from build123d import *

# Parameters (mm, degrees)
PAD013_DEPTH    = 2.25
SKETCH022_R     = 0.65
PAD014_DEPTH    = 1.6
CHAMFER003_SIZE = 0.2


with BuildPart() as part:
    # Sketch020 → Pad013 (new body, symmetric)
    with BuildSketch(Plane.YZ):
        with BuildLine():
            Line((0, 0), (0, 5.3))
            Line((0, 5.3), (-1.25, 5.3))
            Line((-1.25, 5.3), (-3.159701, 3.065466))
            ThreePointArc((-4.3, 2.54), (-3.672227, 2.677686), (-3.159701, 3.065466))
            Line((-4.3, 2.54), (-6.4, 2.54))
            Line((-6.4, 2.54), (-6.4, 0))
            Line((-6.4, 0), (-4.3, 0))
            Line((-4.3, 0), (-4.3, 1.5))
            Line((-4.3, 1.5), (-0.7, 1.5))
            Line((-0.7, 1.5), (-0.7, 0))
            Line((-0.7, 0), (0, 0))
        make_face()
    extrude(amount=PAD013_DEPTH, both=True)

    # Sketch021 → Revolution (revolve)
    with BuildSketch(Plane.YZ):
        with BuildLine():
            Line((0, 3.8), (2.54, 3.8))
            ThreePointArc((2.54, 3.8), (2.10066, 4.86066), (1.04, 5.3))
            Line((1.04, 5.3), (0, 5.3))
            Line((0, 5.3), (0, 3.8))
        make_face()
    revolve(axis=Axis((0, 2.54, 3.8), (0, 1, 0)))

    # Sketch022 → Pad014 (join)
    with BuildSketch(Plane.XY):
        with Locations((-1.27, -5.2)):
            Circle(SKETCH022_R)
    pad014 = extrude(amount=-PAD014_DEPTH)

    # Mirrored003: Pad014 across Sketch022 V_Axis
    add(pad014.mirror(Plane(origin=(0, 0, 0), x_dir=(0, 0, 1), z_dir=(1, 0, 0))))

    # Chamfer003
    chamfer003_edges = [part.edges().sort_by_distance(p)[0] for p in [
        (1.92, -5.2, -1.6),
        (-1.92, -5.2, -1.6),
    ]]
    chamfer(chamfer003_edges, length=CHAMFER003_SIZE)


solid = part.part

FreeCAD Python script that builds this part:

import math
import FreeCAD as App
import Part
import Sketcher

V = App.Vector


def edges_at(feature, points):
    """Names of the edges that pass closest to the given points."""
    edges = feature.Shape.Edges
    near = lambda p: min(range(len(edges)), key=lambda i: edges[i].distToShape(Part.Vertex(*p))[0])
    return sorted({f"Edge{near(p) + 1}" for p in points})

doc = App.newDocument("Part")
body = doc.addObject("PartDesign::Body", "Body")

sketch1 = body.newObject("Sketcher::SketchObject", "Sketch")
sketch1.AttachmentSupport = (doc.getObject("YZ_Plane"), [""])
sketch1.MapMode = "FlatFace"
sketch1.addGeometry(Part.LineSegment(V(0, 0, 0), V(0, 5.3, 0)), False)
sketch1.addGeometry(Part.LineSegment(V(0, 5.3, 0), V(-1.25, 5.3, 0)), False)
sketch1.addGeometry(Part.LineSegment(V(-1.25, 5.3, 0), V(-3.159701, 3.065466, 0)), False)
sketch1.addGeometry(Part.ArcOfCircle(Part.Circle(V(-4.300002, 4.040002, 0), V(0, 0, 1), 1.500002), math.radians(-89.999931), math.radians(-40.518224)), False)
sketch1.addGeometry(Part.LineSegment(V(-4.3, 2.54, 0), V(-6.4, 2.54, 0)), False)
sketch1.addGeometry(Part.LineSegment(V(-6.4, 2.54, 0), V(-6.4, 0, 0)), False)
sketch1.addGeometry(Part.LineSegment(V(-6.4, 0, 0), V(-4.3, 0, 0)), False)
sketch1.addGeometry(Part.LineSegment(V(-4.3, 0, 0), V(-4.3, 1.5, 0)), False)
sketch1.addGeometry(Part.LineSegment(V(-4.3, 1.5, 0), V(-0.7, 1.5, 0)), False)
sketch1.addGeometry(Part.LineSegment(V(-0.7, 1.5, 0), V(-0.7, 0, 0)), False)
sketch1.addGeometry(Part.LineSegment(V(-0.7, 0, 0), V(0, 0, 0)), False)
sketch1.addConstraint(Sketcher.Constraint("Coincident", 0, 2, 1, 1))
sketch1.addConstraint(Sketcher.Constraint("Coincident", 1, 2, 2, 1))
sketch1.addConstraint(Sketcher.Constraint("Tangent", 2, 2, 3, 2))
sketch1.addConstraint(Sketcher.Constraint("Tangent", 3, 1, 4, 1))
sketch1.addConstraint(Sketcher.Constraint("Coincident", 4, 2, 5, 1))
sketch1.addConstraint(Sketcher.Constraint("Coincident", 5, 2, 6, 1))
sketch1.addConstraint(Sketcher.Constraint("Coincident", 6, 2, 7, 1))
sketch1.addConstraint(Sketcher.Constraint("Coincident", 7, 2, 8, 1))
sketch1.addConstraint(Sketcher.Constraint("Coincident", 8, 2, 9, 1))
sketch1.addConstraint(Sketcher.Constraint("Coincident", 9, 2, 10, 1))
sketch1.addConstraint(Sketcher.Constraint("Coincident", 10, 2, 0, 1))
sketch1.addConstraint(Sketcher.Constraint("Vertical", 0))
sketch1.addConstraint(Sketcher.Constraint("Horizontal", 1))
sketch1.addConstraint(Sketcher.Constraint("Horizontal", 4))
sketch1.addConstraint(Sketcher.Constraint("Vertical", 5))
sketch1.addConstraint(Sketcher.Constraint("Horizontal", 6))
sketch1.addConstraint(Sketcher.Constraint("Vertical", 7))
sketch1.addConstraint(Sketcher.Constraint("Horizontal", 8))
sketch1.addConstraint(Sketcher.Constraint("Vertical", 9))
sketch1.addConstraint(Sketcher.Constraint("Horizontal", 10))
sketch1.addConstraint(Sketcher.Constraint("Coincident", 10, 2, -1, 1))
sketch1.addConstraint(Sketcher.Constraint("PointOnObject", 5, 2, -1))
sketch1.addConstraint(Sketcher.Constraint("Vertical", 3, 1, 6, 2))
sketch1.addConstraint(Sketcher.Constraint("DistanceX", 4, 2, 4, 1, 2.1))
sketch1.addConstraint(Sketcher.Constraint("DistanceX", 8, 1, 8, 2, 3.6))
sketch1.addConstraint(Sketcher.Constraint("DistanceX", 10, 1, 10, 2, 0.7))
sketch1.addConstraint(Sketcher.Constraint("DistanceY", 0, 1, 0, 2, 5.3))
sketch1.addConstraint(Sketcher.Constraint("DistanceY", 7, 1, 7, 2, 1.5))
sketch1.addConstraint(Sketcher.Constraint("DistanceX", 1, 2, 1, 1, 1.25))
sketch1.addConstraint(Sketcher.Constraint("DistanceY", 5, 2, 5, 1, 2.54))
sketch1.addConstraint(Sketcher.Constraint("Radius", 3, 1.500002))
pad1 = body.newObject("PartDesign::Pad", "Pad")
pad1.Profile = sketch1
pad1.Length = 4.5
pad1.Midplane = True

sketch2 = body.newObject("Sketcher::SketchObject", "Sketch001")
sketch2.AttachmentSupport = (doc.getObject("YZ_Plane"), [""])
sketch2.MapMode = "FlatFace"
sketch2.addGeometry(Part.LineSegment(V(0, 3.8, 0), V(2.54, 3.8, 0)), False)
sketch2.addGeometry(Part.ArcOfCircle(Part.Circle(V(1.039999, 3.799999, 0), V(0, 0, 1), 1.500001), math.radians(0.000022), math.radians(89.999978)), False)
sketch2.addGeometry(Part.LineSegment(V(1.04, 5.3, 0), V(0, 5.3, 0)), False)
sketch2.addGeometry(Part.LineSegment(V(0, 5.3, 0), V(0, 3.8, 0)), False)
sketch2.addGeometry(Part.LineSegment(V(0, 3.8, 0), V(2.54, 3.8, 0)), True)
sketch2.addConstraint(Sketcher.Constraint("Coincident", 0, 2, 1, 1))
sketch2.addConstraint(Sketcher.Constraint("Tangent", 1, 2, 2, 1))
sketch2.addConstraint(Sketcher.Constraint("Coincident", 2, 2, 3, 1))
sketch2.addConstraint(Sketcher.Constraint("Coincident", 3, 2, 0, 1))
sketch2.addConstraint(Sketcher.Constraint("Horizontal", 0))
sketch2.addConstraint(Sketcher.Constraint("Horizontal", 2))
sketch2.addConstraint(Sketcher.Constraint("Vertical", 3))
sketch2.addConstraint(Sketcher.Constraint("Horizontal", 4))
sketch2.addConstraint(Sketcher.Constraint("Coincident", 4, 1, 3, 2))
sketch2.addConstraint(Sketcher.Constraint("PointOnObject", 2, 2, -2))
sketch2.addConstraint(Sketcher.Constraint("Horizontal", 1, 3, 0, 2))
sketch2.addConstraint(Sketcher.Constraint("Equal", 0, 4))
sketch2.addConstraint(Sketcher.Constraint("Radius", 1, 1.500001))
sketch2.addConstraint(Sketcher.Constraint("DistanceX", 0, 1, 0, 2, 2.54))
sketch2.addConstraint(Sketcher.Constraint("DistanceY", -1, 1, 1, 3, 3.799999))
revolution = body.newObject("PartDesign::Revolution", "Revolution")
revolution.Profile = sketch2
revolution.ReferenceAxis = (sketch2, ["Axis0"])
revolution.Angle = 360

sketch3 = body.newObject("Sketcher::SketchObject", "Sketch002")
sketch3.AttachmentSupport = (doc.getObject("XY_Plane"), [""])
sketch3.MapMode = "FlatFace"
sketch3.addGeometry(Part.Circle(V(-1.27, -5.2, 0), V(0, 0, 1), 0.65), False)
sketch3.addConstraint(Sketcher.Constraint("Diameter", 0, 1.3))
sketch3.addConstraint(Sketcher.Constraint("DistanceY", 0, 3, -1, 1, 5.2))
sketch3.addConstraint(Sketcher.Constraint("DistanceX", 0, 3, -1, 1, 1.27))
pad2 = body.newObject("PartDesign::Pad", "Pad001")
pad2.Profile = sketch3
pad2.Length = 1.6
pad2.Reversed = True
doc.recompute()

mirrored = body.newObject("PartDesign::Mirrored", "Mirrored")
mirrored.Originals = [pad2]
mirrored.MirrorPlane = (doc.getObject("YZ_Plane"), [""])
body.Tip = mirrored
doc.recompute()

chamfer = body.newObject("PartDesign::Chamfer", "Chamfer")
chamfer.Base = (mirrored, edges_at(mirrored, [(1.92, -5.2, -1.6), (-1.92, -5.2, -1.6)]))
chamfer.Size = 0.2

doc.recompute()
